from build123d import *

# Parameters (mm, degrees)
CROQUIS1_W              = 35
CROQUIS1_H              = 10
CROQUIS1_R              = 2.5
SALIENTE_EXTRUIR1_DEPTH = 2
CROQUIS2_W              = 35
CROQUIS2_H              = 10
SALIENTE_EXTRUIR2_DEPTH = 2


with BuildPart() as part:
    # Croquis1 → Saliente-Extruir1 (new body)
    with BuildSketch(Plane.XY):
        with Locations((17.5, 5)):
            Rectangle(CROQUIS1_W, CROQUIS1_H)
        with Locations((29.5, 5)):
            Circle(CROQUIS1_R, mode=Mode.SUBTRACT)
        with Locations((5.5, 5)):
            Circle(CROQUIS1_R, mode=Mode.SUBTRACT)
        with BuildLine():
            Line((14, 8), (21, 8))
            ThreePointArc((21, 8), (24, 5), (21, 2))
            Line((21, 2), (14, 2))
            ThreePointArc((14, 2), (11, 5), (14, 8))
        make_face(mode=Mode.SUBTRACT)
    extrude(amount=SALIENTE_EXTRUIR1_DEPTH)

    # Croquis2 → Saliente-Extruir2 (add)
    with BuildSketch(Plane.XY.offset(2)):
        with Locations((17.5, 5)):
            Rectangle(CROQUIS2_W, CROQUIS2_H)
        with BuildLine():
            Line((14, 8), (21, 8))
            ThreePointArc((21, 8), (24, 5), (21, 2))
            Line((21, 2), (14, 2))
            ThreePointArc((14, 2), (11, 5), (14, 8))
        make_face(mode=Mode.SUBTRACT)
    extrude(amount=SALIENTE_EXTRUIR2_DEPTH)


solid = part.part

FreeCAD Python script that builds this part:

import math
import FreeCAD as App
import Part
import Sketcher
from FreeCAD import Vector


def add_polygon(sketch, points):
    """Adds a closed chain of lines whose ends are joined by coincident constraints."""
    first, n = sketch.GeometryCount, len(points)
    for a, b in zip(points, points[1:] + points[:1]):
        sketch.addGeometry(Part.LineSegment(App.Vector(*a, 0), App.Vector(*b, 0)), False)
    for i in range(n):
        sketch.addConstraint(Sketcher.Constraint("Coincident", first + i, 2, first + (i + 1) % n, 1))

doc = App.newDocument("Part")
body = doc.addObject("PartDesign::Body", "Body")

# Sketch on XY plane
sketch1 = doc.addObject("Sketcher::SketchObject", "Sketch")
body.addObject(sketch1)
sketch1.AttachmentSupport = (doc.XY_Plane, [""])
sketch1.MapMode = "FlatFace"
add_polygon(sketch1, [(0, 10), (0, 0), (35, 0), (35, 10)])  # lines 0-3
sketch1.addGeometry(Part.Circle(Vector(5.5, 5, 0), Vector(0, 0, 1), 2.5), False)  # 4
sketch1.addGeometry(Part.ArcOfCircle(Part.Circle(Vector(14, 5, 0), Vector(0, 0, 1), 3), math.radians(90), math.radians(270)), False)  # 5
sketch1.addGeometry(Part.LineSegment(Vector(14, 8, 0), Vector(21, 8, 0)), False)  # 6
sketch1.addGeometry(Part.ArcOfCircle(Part.Circle(Vector(21, 5, 0), Vector(0, 0, 1), 3), math.radians(-90), math.radians(90)), False)  # 7
sketch1.addGeometry(Part.LineSegment(Vector(21, 2, 0), Vector(14, 2, 0)), False)  # 8
sketch1.addGeometry(Part.Circle(Vector(29.5, 5, 0), Vector(0, 0, 1), 2.5), False)  # 9
sketch1.addConstraint(Sketcher.Constraint("Tangent", 5, 1, 6, 1))
sketch1.addConstraint(Sketcher.Constraint("Tangent", 6, 2, 7, 2))
sketch1.addConstraint(Sketcher.Constraint("Tangent", 7, 1, 8, 1))
sketch1.addConstraint(Sketcher.Constraint("Tangent", 8, 2, 5, 2))
sketch1.addConstraint(Sketcher.Constraint("Vertical", 0))
sketch1.addConstraint(Sketcher.Constraint("Horizontal", 1))
sketch1.addConstraint(Sketcher.Constraint("Vertical", 2))
sketch1.addConstraint(Sketcher.Constraint("Horizontal", 3))
sketch1.addConstraint(Sketcher.Constraint("Horizontal", 6))
sketch1.addConstraint(Sketcher.Constraint("Horizontal", 8))
sketch1.addConstraint(Sketcher.Constraint("Coincident", 0, 2, -1, 1))
sketch1.addConstraint(Sketcher.Constraint("Equal", 4, 9))
sketch1.addConstraint(Sketcher.Constraint("Horizontal", 4, 3, 5, 3))
sketch1.addConstraint(Sketcher.Constraint("Horizontal", 7, 3, 9, 3))
sketch1.addConstraint(Sketcher.Constraint("Diameter", 4, 5.0))
sketch1.addConstraint(Sketcher.Constraint("Radius", 5, 3.0))
sketch1.addConstraint(Sketcher.Constraint("DistanceX", 1, 1, 1, 2, 35.0))
sketch1.addConstraint(Sketcher.Constraint("DistanceX", 6, 1, 6, 2, 7.0))
sketch1.addConstraint(Sketcher.Constraint("DistanceY", 0, 2, 0, 1, 10.0))
sketch1.addConstraint(Sketcher.Constraint("DistanceY", -1, 1, 4, 3, 5.0))
sketch1.addConstraint(Sketcher.Constraint("DistanceX", -1, 1, 5, 3, 14.0))
sketch1.addConstraint(Sketcher.Constraint("DistanceX", 4, 3, 9, 3, 24.0))
sketch1.addConstraint(Sketcher.Constraint("DistanceX", -1, 1, 4, 3, 5.5))
pad1 = doc.addObject("PartDesign::Pad", "Pad")
body.addObject(pad1)
pad1.Profile = sketch1
pad1.Length = 2

# Sketch on XY plane
sketch2 = doc.addObject("Sketcher::SketchObject", "Sketch001")
body.addObject(sketch2)
sketch2.AttachmentSupport = (doc.XY_Plane, [""])
sketch2.MapMode = "FlatFace"
sketch2.AttachmentOffset = App.Placement(Vector(0, 0, 2), App.Rotation())
add_polygon(sketch2, [(0, 10), (0, 0), (35, 0), (35, 10)])  # lines 0-3
sketch2.addGeometry(Part.ArcOfCircle(Part.Circle(Vector(14, 5, 0), Vector(0, 0, 1), 3), math.radians(90), math.radians(270)), False)  # 4
sketch2.addGeometry(Part.LineSegment(Vector(14, 8, 0), Vector(21, 8, 0)), False)  # 5
sketch2.addGeometry(Part.ArcOfCircle(Part.Circle(Vector(21, 5, 0), Vector(0, 0, 1), 3), math.radians(-90), math.radians(90)), False)  # 6
sketch2.addGeometry(Part.LineSegment(Vector(21, 2, 0), Vector(14, 2, 0)), False)  # 7
sketch2.addConstraint(Sketcher.Constraint("Tangent", 4, 1, 5, 1))
sketch2.addConstraint(Sketcher.Constraint("Tangent", 5, 2, 6, 2))
sketch2.addConstraint(Sketcher.Constraint("Tangent", 6, 1, 7, 1))
sketch2.addConstraint(Sketcher.Constraint("Tangent", 7, 2, 4, 2))
sketch2.addConstraint(Sketcher.Constraint("Vertical", 0))
sketch2.addConstraint(Sketcher.Constraint("Horizontal", 1))
sketch2.addConstraint(Sketcher.Constraint("Vertical", 2))
sketch2.addConstraint(Sketcher.Constraint("Horizontal", 3))
sketch2.addConstraint(Sketcher.Constraint("Horizontal", 5))
sketch2.addConstraint(Sketcher.Constraint("Horizontal", 7))
sketch2.addConstraint(Sketcher.Constraint("Coincident", 0, 2, -1, 1))
sketch2.addConstraint(Sketcher.Constraint("Radius", 4, 3.0))
sketch2.addConstraint(Sketcher.Constraint("DistanceX", 1, 1, 1, 2, 35.0))
sketch2.addConstraint(Sketcher.Constraint("DistanceX", 5, 1, 5, 2, 7.0))
sketch2.addConstraint(Sketcher.Constraint("DistanceY", 0, 2, 0, 1, 10.0))
sketch2.addConstraint(Sketcher.Constraint("DistanceX", -1, 1, 4, 3, 14.0))
sketch2.addConstraint(Sketcher.Constraint("DistanceY", -1, 1, 4, 3, 5.0))
pad2 = doc.addObject("PartDesign::Pad", "Pad001")
body.addObject(pad2)
pad2.Profile = sketch2
pad2.Length = 2

doc.recompute()
